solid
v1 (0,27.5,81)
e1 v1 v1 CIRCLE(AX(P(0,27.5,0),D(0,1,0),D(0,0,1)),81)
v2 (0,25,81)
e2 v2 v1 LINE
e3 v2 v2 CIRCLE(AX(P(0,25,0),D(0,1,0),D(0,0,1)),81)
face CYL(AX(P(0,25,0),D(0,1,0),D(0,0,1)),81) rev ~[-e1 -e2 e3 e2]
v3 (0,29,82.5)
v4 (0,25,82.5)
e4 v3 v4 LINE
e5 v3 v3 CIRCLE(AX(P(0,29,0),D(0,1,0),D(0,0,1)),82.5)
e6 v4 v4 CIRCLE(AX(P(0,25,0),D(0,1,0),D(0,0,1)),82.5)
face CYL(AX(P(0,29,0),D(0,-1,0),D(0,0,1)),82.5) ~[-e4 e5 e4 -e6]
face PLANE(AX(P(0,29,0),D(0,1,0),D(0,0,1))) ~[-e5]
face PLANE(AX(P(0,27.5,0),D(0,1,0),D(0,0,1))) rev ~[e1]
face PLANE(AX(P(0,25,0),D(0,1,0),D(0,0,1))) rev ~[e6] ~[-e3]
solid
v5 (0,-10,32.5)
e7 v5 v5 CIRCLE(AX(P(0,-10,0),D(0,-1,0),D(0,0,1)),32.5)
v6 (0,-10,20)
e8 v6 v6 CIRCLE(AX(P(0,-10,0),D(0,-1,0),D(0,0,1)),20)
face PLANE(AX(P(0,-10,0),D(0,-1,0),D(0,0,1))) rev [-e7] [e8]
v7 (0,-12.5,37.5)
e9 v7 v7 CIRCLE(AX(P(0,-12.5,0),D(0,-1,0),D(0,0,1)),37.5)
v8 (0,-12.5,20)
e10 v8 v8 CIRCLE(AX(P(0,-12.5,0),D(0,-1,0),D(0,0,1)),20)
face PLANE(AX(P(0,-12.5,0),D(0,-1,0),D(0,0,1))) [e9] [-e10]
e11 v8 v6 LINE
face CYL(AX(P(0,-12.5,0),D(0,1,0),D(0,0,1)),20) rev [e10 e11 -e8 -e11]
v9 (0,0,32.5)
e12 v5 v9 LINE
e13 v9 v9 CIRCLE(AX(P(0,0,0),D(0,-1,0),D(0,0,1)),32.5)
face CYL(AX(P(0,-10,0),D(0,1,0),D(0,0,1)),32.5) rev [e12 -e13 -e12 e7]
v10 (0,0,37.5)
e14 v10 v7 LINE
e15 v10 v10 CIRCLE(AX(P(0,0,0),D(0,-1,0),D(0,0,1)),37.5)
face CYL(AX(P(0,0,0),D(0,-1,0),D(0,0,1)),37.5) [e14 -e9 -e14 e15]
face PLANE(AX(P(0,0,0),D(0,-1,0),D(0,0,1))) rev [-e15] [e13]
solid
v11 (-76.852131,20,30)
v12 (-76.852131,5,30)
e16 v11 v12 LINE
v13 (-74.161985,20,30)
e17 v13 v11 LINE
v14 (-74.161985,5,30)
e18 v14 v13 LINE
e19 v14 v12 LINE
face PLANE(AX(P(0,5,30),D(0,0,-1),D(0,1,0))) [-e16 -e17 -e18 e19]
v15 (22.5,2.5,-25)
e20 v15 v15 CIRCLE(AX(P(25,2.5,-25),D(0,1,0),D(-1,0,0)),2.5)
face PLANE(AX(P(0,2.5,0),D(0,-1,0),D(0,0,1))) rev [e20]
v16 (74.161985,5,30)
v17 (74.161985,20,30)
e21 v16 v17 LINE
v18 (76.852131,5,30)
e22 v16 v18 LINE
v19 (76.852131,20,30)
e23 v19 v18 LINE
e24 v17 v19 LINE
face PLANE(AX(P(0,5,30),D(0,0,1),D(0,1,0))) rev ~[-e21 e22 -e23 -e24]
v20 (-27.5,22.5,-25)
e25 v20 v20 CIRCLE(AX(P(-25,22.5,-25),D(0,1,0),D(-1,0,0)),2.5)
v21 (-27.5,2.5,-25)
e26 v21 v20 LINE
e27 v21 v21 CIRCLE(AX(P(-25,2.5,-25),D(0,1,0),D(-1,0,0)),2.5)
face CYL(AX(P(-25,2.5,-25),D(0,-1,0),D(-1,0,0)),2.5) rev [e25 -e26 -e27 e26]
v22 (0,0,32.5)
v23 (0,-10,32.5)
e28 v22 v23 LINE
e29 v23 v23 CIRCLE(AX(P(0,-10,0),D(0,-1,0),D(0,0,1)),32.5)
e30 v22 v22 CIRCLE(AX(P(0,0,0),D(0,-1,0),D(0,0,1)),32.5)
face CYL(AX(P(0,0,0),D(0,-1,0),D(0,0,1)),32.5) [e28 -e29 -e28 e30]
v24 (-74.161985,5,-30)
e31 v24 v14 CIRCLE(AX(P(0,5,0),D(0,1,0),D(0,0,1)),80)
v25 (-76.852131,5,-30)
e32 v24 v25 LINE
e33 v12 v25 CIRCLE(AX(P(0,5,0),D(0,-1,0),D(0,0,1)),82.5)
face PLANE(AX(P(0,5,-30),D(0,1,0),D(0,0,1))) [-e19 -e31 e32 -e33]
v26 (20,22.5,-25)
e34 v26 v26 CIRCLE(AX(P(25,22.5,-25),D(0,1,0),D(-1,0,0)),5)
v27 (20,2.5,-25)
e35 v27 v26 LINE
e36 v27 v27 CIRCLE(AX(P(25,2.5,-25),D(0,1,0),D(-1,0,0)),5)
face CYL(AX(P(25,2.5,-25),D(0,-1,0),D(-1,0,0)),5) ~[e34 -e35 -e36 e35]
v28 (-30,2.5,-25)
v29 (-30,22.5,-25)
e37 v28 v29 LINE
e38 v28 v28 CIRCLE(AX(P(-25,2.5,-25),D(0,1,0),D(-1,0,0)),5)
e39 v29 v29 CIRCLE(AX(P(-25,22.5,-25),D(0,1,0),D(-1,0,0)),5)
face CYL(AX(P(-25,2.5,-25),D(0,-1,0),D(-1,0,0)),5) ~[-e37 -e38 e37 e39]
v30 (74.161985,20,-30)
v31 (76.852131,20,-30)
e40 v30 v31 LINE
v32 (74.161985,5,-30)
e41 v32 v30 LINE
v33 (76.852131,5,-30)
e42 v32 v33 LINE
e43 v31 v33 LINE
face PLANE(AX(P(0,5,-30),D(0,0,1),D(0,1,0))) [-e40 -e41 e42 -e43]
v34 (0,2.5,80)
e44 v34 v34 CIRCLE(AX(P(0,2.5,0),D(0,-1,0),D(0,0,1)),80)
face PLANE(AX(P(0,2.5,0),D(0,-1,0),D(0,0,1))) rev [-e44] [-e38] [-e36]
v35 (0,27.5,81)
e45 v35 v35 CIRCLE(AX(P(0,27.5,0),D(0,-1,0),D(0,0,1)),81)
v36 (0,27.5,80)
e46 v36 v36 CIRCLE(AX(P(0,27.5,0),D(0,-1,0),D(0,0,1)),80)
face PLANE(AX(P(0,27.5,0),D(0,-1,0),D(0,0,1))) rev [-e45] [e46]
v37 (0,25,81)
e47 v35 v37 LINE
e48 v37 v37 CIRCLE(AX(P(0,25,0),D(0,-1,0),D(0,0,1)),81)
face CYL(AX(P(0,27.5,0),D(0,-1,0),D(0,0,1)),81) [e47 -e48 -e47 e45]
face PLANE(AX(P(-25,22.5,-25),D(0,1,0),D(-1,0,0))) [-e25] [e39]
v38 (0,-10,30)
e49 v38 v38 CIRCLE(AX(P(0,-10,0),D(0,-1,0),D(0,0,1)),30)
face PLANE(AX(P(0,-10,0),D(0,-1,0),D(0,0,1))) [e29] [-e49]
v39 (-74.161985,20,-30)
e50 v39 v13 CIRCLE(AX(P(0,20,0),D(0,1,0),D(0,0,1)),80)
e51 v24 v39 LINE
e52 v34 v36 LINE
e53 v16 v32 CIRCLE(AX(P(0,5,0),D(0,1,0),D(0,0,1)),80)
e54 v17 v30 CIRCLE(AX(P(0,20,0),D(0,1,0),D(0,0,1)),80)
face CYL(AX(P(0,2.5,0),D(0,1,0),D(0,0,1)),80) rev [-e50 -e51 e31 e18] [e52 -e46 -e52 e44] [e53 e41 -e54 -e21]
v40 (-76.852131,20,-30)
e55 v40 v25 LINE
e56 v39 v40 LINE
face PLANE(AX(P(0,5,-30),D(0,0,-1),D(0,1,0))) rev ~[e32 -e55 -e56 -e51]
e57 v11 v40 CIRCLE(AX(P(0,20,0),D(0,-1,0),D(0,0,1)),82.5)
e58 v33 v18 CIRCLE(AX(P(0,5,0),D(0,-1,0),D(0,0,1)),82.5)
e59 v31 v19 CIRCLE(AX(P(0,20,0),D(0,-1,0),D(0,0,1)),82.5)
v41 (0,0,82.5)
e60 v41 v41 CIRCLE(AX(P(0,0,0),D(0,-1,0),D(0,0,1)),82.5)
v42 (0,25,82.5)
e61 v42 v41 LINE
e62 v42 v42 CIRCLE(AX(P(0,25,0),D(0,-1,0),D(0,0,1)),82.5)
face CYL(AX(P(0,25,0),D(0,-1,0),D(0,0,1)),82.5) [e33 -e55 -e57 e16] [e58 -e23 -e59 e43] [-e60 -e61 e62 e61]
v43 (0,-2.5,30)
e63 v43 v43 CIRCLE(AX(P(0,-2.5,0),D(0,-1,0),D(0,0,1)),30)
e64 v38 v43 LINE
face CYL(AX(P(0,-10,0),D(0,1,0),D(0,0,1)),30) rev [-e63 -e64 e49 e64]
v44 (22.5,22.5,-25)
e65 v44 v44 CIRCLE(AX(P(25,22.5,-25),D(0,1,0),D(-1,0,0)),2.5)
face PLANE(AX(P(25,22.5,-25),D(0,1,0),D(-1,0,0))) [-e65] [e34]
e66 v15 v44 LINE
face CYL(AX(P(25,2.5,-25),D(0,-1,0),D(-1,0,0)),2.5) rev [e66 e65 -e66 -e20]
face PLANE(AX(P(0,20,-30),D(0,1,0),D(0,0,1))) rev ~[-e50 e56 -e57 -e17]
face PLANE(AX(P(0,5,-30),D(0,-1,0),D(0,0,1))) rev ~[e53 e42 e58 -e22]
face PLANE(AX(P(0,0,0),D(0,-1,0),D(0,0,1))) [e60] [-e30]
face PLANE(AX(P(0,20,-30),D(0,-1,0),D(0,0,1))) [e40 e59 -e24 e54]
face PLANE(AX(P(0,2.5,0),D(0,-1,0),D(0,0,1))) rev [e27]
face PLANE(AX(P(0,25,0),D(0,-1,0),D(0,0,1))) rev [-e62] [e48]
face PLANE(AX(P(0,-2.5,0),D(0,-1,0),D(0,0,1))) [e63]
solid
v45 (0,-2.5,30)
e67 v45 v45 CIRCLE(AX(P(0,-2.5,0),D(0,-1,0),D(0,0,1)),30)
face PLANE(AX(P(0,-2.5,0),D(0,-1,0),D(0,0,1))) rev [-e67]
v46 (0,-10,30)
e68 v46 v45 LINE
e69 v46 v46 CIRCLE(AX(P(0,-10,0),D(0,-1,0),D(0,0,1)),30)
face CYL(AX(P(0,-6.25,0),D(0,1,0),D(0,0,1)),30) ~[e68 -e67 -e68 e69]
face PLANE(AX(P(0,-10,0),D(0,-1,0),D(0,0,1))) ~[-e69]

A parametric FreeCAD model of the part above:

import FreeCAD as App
import Part
import Sketcher
Q = App.Units.Quantity

doc = App.newDocument("Part")
body = doc.addObject("PartDesign::Body", "Body")

sketch1 = doc.addObject("Sketcher::SketchObject", "Sketch")
body.addObject(sketch1)
sketch1.AttachmentSupport = (doc.YZ_Plane, [""])
sketch1.MapMode = "FlatFace"
sketch1.addGeometry([
    Part.LineSegment(App.Vector(-2.5, 0, 0), App.Vector(2.5, 0, 0)),
    Part.LineSegment(App.Vector(2.5, 0, 0), App.Vector(2.5, 80, 0)),
    Part.LineSegment(App.Vector(2.5, 80, 0), App.Vector(27.5, 80, 0)),
    Part.LineSegment(App.Vector(27.5, 80, 0), App.Vector(27.5, 81, 0)),
    Part.LineSegment(App.Vector(27.5, 81, 0), App.Vector(25, 81, 0)),
    Part.LineSegment(App.Vector(25, 81, 0), App.Vector(25, 82.5, 0)),
    Part.LineSegment(App.Vector(25, 82.5, 0), App.Vector(0, 82.5, 0)),
    Part.LineSegment(App.Vector(0, 82.5, 0), App.Vector(0, 32.5, 0)),
    Part.LineSegment(App.Vector(0, 32.5, 0), App.Vector(-10, 32.5, 0)),
    Part.LineSegment(App.Vector(-10, 32.5, 0), App.Vector(-10, 30, 0)),
    Part.LineSegment(App.Vector(-10, 30, 0), App.Vector(-2.5, 30, 0)),
    Part.LineSegment(App.Vector(-2.5, 30, 0), App.Vector(-2.5, 0, 0)),
], False)
sketch1.addConstraint([
    Sketcher.Constraint("Coincident", 0, 2, 1, 1),
    Sketcher.Constraint("Coincident", 1, 2, 2, 1),
    Sketcher.Constraint("Coincident", 2, 2, 3, 1),
    Sketcher.Constraint("Coincident", 3, 2, 4, 1),
    Sketcher.Constraint("Coincident", 4, 2, 5, 1),
    Sketcher.Constraint("Coincident", 5, 2, 6, 1),
    Sketcher.Constraint("Coincident", 6, 2, 7, 1),
    Sketcher.Constraint("Coincident", 7, 2, 8, 1),
    Sketcher.Constraint("Coincident", 8, 2, 9, 1),
    Sketcher.Constraint("Coincident", 9, 2, 10, 1),
    Sketcher.Constraint("Coincident", 10, 2, 11, 1),
    Sketcher.Constraint("Coincident", 11, 2, 0, 1),
    Sketcher.Constraint("Horizontal", 0),
    Sketcher.Constraint("Vertical", 1),
    Sketcher.Constraint("Horizontal", 2),
    Sketcher.Constraint("Vertical", 3),
    Sketcher.Constraint("Horizontal", 4),
    Sketcher.Constraint("Vertical", 5),
    Sketcher.Constraint("Horizontal", 6),
    Sketcher.Constraint("Vertical", 7),
    Sketcher.Constraint("Horizontal", 8),
    Sketcher.Constraint("Vertical", 9),
    Sketcher.Constraint("Horizontal", 10),
    Sketcher.Constraint("Vertical", 11),
    Sketcher.Constraint("Symmetric", 0, 2, 11, 2, -1, 1),
    Sketcher.Constraint("PointOnObject", 6, 2, -2),
    Sketcher.Constraint("Equal", 2, 6),
    Sketcher.Constraint("Equal", 4, 9),
    Sketcher.Constraint("DistanceX", 0, 1, 0, 2, Q("5 mm")),
    Sketcher.Constraint("DistanceX", 2, 1, 2, 2, Q("25 mm")),
    Sketcher.Constraint("DistanceX", 8, 2, 8, 1, Q("10 mm")),
    Sketcher.Constraint("DistanceY", 1, 1, 1, 2, Q("80 mm")),
    Sketcher.Constraint("DistanceY", 3, 1, 3, 2, Q("1 mm")),
    Sketcher.Constraint("DistanceY", 7, 2, 7, 1, Q("50 mm")),
    Sketcher.Constraint("DistanceY", 11, 2, 11, 1, Q("30 mm")),
])
revolution = doc.addObject("PartDesign::Revolution", "Revolution")
body.addObject(revolution)
revolution.Profile = sketch1
revolution.ReferenceAxis = (sketch1, ["H_Axis"])
revolution.Angle = 360

sketch2 = doc.addObject("Sketcher::SketchObject", "Sketch001")
body.addObject(sketch2)
sketch2.AttachmentSupport = (doc.YZ_Plane, [""])
sketch2.MapMode = "FlatFace"
sketch2.addGeometry([
    Part.LineSegment(App.Vector(5, 30, 0), App.Vector(5, -30, 0)),
    Part.LineSegment(App.Vector(5, -30, 0), App.Vector(20, -30, 0)),
    Part.LineSegment(App.Vector(20, -30, 0), App.Vector(20, 30, 0)),
    Part.LineSegment(App.Vector(20, 30, 0), App.Vector(5, 30, 0)),
], False)
sketch2.addConstraint([
    Sketcher.Constraint("Coincident", 0, 2, 1, 1),
    Sketcher.Constraint("Coincident", 1, 2, 2, 1),
    Sketcher.Constraint("Coincident", 2, 2, 3, 1),
    Sketcher.Constraint("Coincident", 3, 2, 0, 1),
    Sketcher.Constraint("Vertical", 0),
    Sketcher.Constraint("Horizontal", 1),
    Sketcher.Constraint("Vertical", 2),
    Sketcher.Constraint("Horizontal", 3),
    Sketcher.Constraint("DistanceX", 1, 1, 1, 2, Q("15 mm")),
    Sketcher.Constraint("DistanceY", 0, 2, 0, 1, Q("60 mm")),
    Sketcher.Constraint("DistanceX", -1, 1, 0, 2, Q("5 mm")),
    Sketcher.Constraint("DistanceY", 0, 2, -1, 1, Q("30 mm")),
])
pocket1 = doc.addObject("PartDesign::Pocket", "Pocket")
body.addObject(pocket1)
pocket1.Profile = sketch2
pocket1.Type = "ThroughAll"
pocket1.Midplane = True

sketch3 = doc.addObject("Sketcher::SketchObject", "Sketch002")
body.addObject(sketch3)
sketch3.AttachmentSupport = (doc.XZ_Plane, [""])
sketch3.MapMode = "FlatFace"
sketch3.AttachmentOffset = App.Placement(App.Vector(0, 0, -2.5), App.Rotation())
sketch3.addGeometry([
    Part.Circle(App.Vector(25, -25, 0), App.Vector(0, 0, 1), 5),
    Part.Circle(App.Vector(25, -25, 0), App.Vector(0, 0, 1), 2.5),
    Part.Circle(App.Vector(-25, -25, 0), App.Vector(0, 0, 1), 5),
    Part.Circle(App.Vector(-25, -25, 0), App.Vector(0, 0, 1), 2.5),
], False)
sketch3.addConstraint([
    Sketcher.Constraint("Coincident", 1, 3, 0, 3),
    Sketcher.Constraint("Coincident", 3, 3, 2, 3),
    Sketcher.Constraint("Equal", 0, 2),
    Sketcher.Constraint("Equal", 1, 3),
    Sketcher.Constraint("Symmetric", 0, 3, 2, 3, -2),
    Sketcher.Constraint("Diameter", 0, Q("10 mm")),
    Sketcher.Constraint("Diameter", 1, Q("5 mm")),
    Sketcher.Constraint("DistanceX", -1, 1, 0, 3, Q("25 mm")),
    Sketcher.Constraint("DistanceY", 0, 3, -1, 1, Q("25 mm")),
])
pad1 = doc.addObject("PartDesign::Pad", "Pad")
body.addObject(pad1)
pad1.Profile = sketch3
pad1.Length = 20
pad1.Reversed = True
body2 = doc.addObject("PartDesign::Body", "Body001")

sketch4 = doc.addObject("Sketcher::SketchObject", "Sketch003")
body2.addObject(sketch4)
sketch4.AttachmentSupport = (doc.getObject("YZ_Plane001"), [""])
sketch4.MapMode = "FlatFace"
sketch4.addGeometry([
    Part.LineSegment(App.Vector(-10, 32.5, 0), App.Vector(0, 32.5, 0)),
    Part.LineSegment(App.Vector(0, 32.5, 0), App.Vector(0, 37.5, 0)),
    Part.LineSegment(App.Vector(0, 37.5, 0), App.Vector(-12.5, 37.5, 0)),
    Part.LineSegment(App.Vector(-12.5, 37.5, 0), App.Vector(-12.5, 20, 0)),
    Part.LineSegment(App.Vector(-12.5, 20, 0), App.Vector(-10, 20, 0)),
    Part.LineSegment(App.Vector(-10, 20, 0), App.Vector(-10, 32.5, 0)),
], False)
sketch4.addConstraint([
    Sketcher.Constraint("Coincident", 0, 2, 1, 1),
    Sketcher.Constraint("Coincident", 1, 2, 2, 1),
    Sketcher.Constraint("Coincident", 2, 2, 3, 1),
    Sketcher.Constraint("Coincident", 3, 2, 4, 1),
    Sketcher.Constraint("Coincident", 4, 2, 5, 1),
    Sketcher.Constraint("Coincident", 5, 2, 0, 1),
    Sketcher.Constraint("Horizontal", 0),
    Sketcher.Constraint("Vertical", 1),
    Sketcher.Constraint("Horizontal", 2),
    Sketcher.Constraint("Vertical", 3),
    Sketcher.Constraint("Horizontal", 4),
    Sketcher.Constraint("Vertical", 5),
    Sketcher.Constraint("PointOnObject", 0, 2, -2),
    Sketcher.Constraint("Equal", 2, 5),
    Sketcher.Constraint("DistanceX", 0, 1, 0, 2, Q("10 mm")),
    Sketcher.Constraint("DistanceY", 1, 1, 1, 2, Q("5 mm")),
    Sketcher.Constraint("DistanceX", 2, 2, 2, 1, Q("12.5 mm")),
    Sketcher.Constraint("DistanceY", -1, 1, 3, 2, Q("20 mm")),
])
revolution2 = doc.addObject("PartDesign::Revolution", "Revolution001")
body2.addObject(revolution2)
revolution2.Profile = sketch4
revolution2.ReferenceAxis = (sketch4, ["H_Axis"])
revolution2.Angle = 360
body3 = doc.addObject("PartDesign::Body", "Body002")

sketch5 = doc.addObject("Sketcher::SketchObject", "Sketch004")
body3.addObject(sketch5)
sketch5.AttachmentSupport = (doc.getObject("YZ_Plane002"), [""])
sketch5.MapMode = "FlatFace"
sketch5.addGeometry([
    Part.LineSegment(App.Vector(27.5, 0, 0), App.Vector(29, 0, 0)),
    Part.LineSegment(App.Vector(29, 0, 0), App.Vector(29, 82.5, 0)),
    Part.LineSegment(App.Vector(29, 82.5, 0), App.Vector(25, 82.5, 0)),
    Part.LineSegment(App.Vector(25, 82.5, 0), App.Vector(25, 81, 0)),
    Part.LineSegment(App.Vector(25, 81, 0), App.Vector(27.5, 81, 0)),
    Part.LineSegment(App.Vector(27.5, 81, 0), App.Vector(27.5, 0, 0)),
], False)
sketch5.addConstraint([
    Sketcher.Constraint("Coincident", 0, 2, 1, 1),
    Sketcher.Constraint("Coincident", 1, 2, 2, 1),
    Sketcher.Constraint("Coincident", 2, 2, 3, 1),
    Sketcher.Constraint("Coincident", 3, 2, 4, 1),
    Sketcher.Constraint("Coincident", 4, 2, 5, 1),
    Sketcher.Constraint("Coincident", 5, 2, 0, 1),
    Sketcher.Constraint("Horizontal", 0),
    Sketcher.Constraint("Vertical", 1),
    Sketcher.Constraint("Horizontal", 2),
    Sketcher.Constraint("Vertical", 3),
    Sketcher.Constraint("Horizontal", 4),
    Sketcher.Constraint("Vertical", 5),
    Sketcher.Constraint("PointOnObject", 0, 2, -1),
    Sketcher.Constraint("Equal", 0, 3),
    Sketcher.Constraint("DistanceX", 2, 2, 2, 1, Q("4 mm")),
    Sketcher.Constraint("DistanceY", 5, 2, 5, 1, Q("81 mm")),
    Sketcher.Constraint("DistanceX", 0, 1, 0, 2, Q("1.5 mm")),
    Sketcher.Constraint("DistanceX", -1, 1, 0, 2, Q("29 mm")),
])
revolution3 = doc.addObject("PartDesign::Revolution", "Revolution002")
body3.addObject(revolution3)
revolution3.Profile = sketch5
revolution3.ReferenceAxis = (sketch5, ["H_Axis"])
revolution3.Angle = 360
body4 = doc.addObject("PartDesign::Body", "Body003")

sketch6 = doc.addObject("Sketcher::SketchObject", "Sketch005")
body4.addObject(sketch6)
sketch6.AttachmentSupport = (doc.getObject("YZ_Plane003"), [""])
sketch6.MapMode = "FlatFace"
sketch6.addGeometry([
    Part.LineSegment(App.Vector(-10, 30, 0), App.Vector(-10, 0, 0)),
    Part.LineSegment(App.Vector(-10, 0, 0), App.Vector(-2, 0, 0)),
    Part.LineSegment(App.Vector(-2, 0, 0), App.Vector(-2, 30, 0)),
    Part.LineSegment(App.Vector(-2, 30, 0), App.Vector(-10, 30, 0)),
], False)
sketch6.addConstraint([
    Sketcher.Constraint("Coincident", 0, 2, 1, 1),
    Sketcher.Constraint("Coincident", 1, 2, 2, 1),
    Sketcher.Constraint("Coincident", 2, 2, 3, 1),
    Sketcher.Constraint("Coincident", 3, 2, 0, 1),
    Sketcher.Constraint("Vertical", 0),
    Sketcher.Constraint("Horizontal", 1),
    Sketcher.Constraint("Vertical", 2),
    Sketcher.Constraint("Horizontal", 3),
    Sketcher.Constraint("PointOnObject", 0, 2, -1),
    Sketcher.Constraint("DistanceY", 0, 2, 0, 1, Q("30 mm")),
    Sketcher.Constraint("DistanceX", 1, 1, 1, 2, Q("7.5 mm")),
    Sketcher.Constraint("DistanceX", 0, 2, -1, 1, Q("10 mm")),
])
revolution4 = doc.addObject("PartDesign::Revolution", "Revolution003")
body4.addObject(revolution4)
revolution4.Profile = sketch6
revolution4.ReferenceAxis = (sketch6, ["H_Axis"])
revolution4.Angle = 360

doc.recompute()
